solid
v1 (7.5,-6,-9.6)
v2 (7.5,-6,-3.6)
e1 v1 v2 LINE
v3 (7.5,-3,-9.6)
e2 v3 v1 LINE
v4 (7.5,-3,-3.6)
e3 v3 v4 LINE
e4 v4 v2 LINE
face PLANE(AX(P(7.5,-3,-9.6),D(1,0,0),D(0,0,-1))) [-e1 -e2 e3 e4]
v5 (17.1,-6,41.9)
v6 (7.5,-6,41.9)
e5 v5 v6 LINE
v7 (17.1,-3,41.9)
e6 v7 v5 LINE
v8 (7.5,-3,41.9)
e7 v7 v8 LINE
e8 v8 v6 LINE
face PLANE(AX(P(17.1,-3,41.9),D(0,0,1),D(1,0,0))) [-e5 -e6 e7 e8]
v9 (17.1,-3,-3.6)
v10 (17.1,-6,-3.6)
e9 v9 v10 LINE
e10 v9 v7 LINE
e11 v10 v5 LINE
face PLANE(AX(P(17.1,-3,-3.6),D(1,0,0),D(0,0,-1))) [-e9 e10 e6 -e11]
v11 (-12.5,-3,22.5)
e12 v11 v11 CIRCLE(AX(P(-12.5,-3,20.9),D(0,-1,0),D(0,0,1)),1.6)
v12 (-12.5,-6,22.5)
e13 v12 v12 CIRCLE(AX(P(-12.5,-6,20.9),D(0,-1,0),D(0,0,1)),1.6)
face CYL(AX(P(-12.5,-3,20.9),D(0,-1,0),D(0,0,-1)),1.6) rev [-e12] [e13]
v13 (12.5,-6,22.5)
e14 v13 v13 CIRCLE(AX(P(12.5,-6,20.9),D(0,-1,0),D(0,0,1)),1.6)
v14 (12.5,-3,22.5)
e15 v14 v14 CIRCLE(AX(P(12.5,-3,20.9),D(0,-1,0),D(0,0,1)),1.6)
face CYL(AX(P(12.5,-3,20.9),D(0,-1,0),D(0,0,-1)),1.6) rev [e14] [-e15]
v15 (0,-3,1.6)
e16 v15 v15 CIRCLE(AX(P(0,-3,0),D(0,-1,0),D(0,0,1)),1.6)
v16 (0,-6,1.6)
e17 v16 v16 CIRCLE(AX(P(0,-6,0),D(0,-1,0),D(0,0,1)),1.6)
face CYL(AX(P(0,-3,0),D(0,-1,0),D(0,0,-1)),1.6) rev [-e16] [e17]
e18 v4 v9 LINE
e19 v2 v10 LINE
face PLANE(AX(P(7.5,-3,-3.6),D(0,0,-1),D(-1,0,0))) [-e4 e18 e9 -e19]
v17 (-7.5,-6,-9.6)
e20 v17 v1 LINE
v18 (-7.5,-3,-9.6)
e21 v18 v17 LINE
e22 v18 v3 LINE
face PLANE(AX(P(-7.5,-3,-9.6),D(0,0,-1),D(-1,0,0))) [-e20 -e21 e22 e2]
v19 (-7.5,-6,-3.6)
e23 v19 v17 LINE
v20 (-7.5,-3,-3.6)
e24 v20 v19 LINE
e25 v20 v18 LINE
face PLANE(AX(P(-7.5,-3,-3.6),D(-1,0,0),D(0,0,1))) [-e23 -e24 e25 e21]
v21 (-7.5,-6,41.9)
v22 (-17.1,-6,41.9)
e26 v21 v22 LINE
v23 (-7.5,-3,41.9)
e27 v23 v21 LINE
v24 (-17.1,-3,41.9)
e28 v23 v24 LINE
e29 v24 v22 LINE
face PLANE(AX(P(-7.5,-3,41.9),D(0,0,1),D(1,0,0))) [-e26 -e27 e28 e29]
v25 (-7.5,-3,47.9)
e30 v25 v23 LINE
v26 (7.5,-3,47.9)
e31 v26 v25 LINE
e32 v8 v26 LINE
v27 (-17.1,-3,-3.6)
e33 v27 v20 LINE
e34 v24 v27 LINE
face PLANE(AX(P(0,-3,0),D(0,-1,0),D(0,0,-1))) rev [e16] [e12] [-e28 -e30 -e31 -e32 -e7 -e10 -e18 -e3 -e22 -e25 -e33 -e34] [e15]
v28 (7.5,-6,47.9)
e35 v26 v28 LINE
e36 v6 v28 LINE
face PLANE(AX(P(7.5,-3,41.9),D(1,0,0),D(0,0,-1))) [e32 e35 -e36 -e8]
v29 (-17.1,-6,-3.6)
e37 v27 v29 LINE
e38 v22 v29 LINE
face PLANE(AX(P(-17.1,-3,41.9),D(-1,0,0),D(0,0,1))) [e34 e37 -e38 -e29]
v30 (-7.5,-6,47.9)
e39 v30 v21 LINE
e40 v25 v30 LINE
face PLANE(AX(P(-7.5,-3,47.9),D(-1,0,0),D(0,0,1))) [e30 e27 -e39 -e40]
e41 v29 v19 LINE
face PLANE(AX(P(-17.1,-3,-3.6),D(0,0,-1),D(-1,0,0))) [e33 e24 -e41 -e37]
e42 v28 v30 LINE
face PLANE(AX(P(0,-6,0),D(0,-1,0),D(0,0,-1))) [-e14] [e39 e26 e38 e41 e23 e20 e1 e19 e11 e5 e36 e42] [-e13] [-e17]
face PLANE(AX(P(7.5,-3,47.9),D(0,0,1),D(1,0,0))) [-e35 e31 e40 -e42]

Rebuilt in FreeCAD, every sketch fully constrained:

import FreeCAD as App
import Part
import Sketcher

V = App.Vector
Q = App.Units.Quantity


def add_polygon(sketch, points):
    """Adds a closed chain of lines whose ends are joined by coincident constraints."""
    first, n = sketch.GeometryCount, len(points)
    for a, b in zip(points, points[1:] + points[:1]):
        sketch.addGeometry(Part.LineSegment(App.Vector(*a, 0), App.Vector(*b, 0)), False)
    for i in range(n):
        sketch.addConstraint(Sketcher.Constraint("Coincident", first + i, 2, first + (i + 1) % n, 1))

doc = App.newDocument("Part")
body = doc.addObject("PartDesign::Body", "Body")

# Sketch on XZ plane
sketch1 = body.newObject("Sketcher::SketchObject", "Sketch")
sketch1.AttachmentSupport = (doc.getObject("XZ_Plane"), [""])
sketch1.MapMode = "FlatFace"
sketch1.AttachmentOffset = App.Placement(V(0, 0, 6), App.Rotation())
add_polygon(sketch1, [(17.1, 41.9), (7.5, 41.9), (7.5, 47.9), (-7.5, 47.9), (-7.5, 41.9), (-17.1, 41.9), (-17.1, -3.6), (-7.5, -3.6), (-7.5, -9.6), (7.5, -9.6), (7.5, -3.6), (17.1, -3.6)])  # lines 0-11
sketch1.addGeometry(Part.Circle(V(0, 0, 0), V(0, 0, 1), 1.6), False)  # 12
sketch1.addGeometry(Part.Circle(V(-12.5, 20.9, 0), V(0, 0, 1), 1.6), False)  # 13
sketch1.addGeometry(Part.Circle(V(12.5, 20.9, 0), V(0, 0, 1), 1.6), False)  # 14
sketch1.addConstraint([
    Sketcher.Constraint("Horizontal", 0),
    Sketcher.Constraint("Vertical", 1),
    Sketcher.Constraint("Horizontal", 2),
    Sketcher.Constraint("Vertical", 3),
    Sketcher.Constraint("Horizontal", 4),
    Sketcher.Constraint("Vertical", 5),
    Sketcher.Constraint("Horizontal", 6),
    Sketcher.Constraint("Vertical", 7),
    Sketcher.Constraint("Horizontal", 8),
    Sketcher.Constraint("Vertical", 9),
    Sketcher.Constraint("Horizontal", 10),
    Sketcher.Constraint("Vertical", 11),
    Sketcher.Constraint("Coincident", 12, 3, -1, 1),
    Sketcher.Constraint("Equal", 12, 13),
    Sketcher.Constraint("Equal", 13, 14),
    Sketcher.Constraint("Symmetric", 13, 3, 14, 3, -2),
    Sketcher.Constraint("Symmetric", 0, 2, 3, 2, -2),
    Sketcher.Constraint("Symmetric", 6, 2, 9, 2, -2),
    Sketcher.Constraint("Vertical", 3, 2, 6, 2),
    Sketcher.Constraint("Equal", 0, 4),
    Sketcher.Constraint("Equal", 3, 7),
    Sketcher.Constraint("Diameter", 12, Q("3.2 mm")),
    Sketcher.Constraint("DistanceX", 2, 2, 2, 1, Q("15 mm")),
    Sketcher.Constraint("DistanceY", 1, 1, 1, 2, Q("6 mm")),
    Sketcher.Constraint("DistanceX", 0, 2, 0, 1, Q("9.6 mm")),
    Sketcher.Constraint("DistanceY", 5, 2, 5, 1, Q("45.5 mm")),
    Sketcher.Constraint("DistanceX", 13, 3, 14, 3, Q("25 mm")),
    Sketcher.Constraint("DistanceY", 14, 3, 0, 2, Q("21 mm")),
    Sketcher.Constraint("DistanceY", -1, 1, 13, 3, Q("20.9 mm")),
])
pad1 = body.newObject("PartDesign::Pad", "Pad")
pad1.Profile = sketch1
pad1.Length = 3
pad1.Reversed = True

doc.recompute()
